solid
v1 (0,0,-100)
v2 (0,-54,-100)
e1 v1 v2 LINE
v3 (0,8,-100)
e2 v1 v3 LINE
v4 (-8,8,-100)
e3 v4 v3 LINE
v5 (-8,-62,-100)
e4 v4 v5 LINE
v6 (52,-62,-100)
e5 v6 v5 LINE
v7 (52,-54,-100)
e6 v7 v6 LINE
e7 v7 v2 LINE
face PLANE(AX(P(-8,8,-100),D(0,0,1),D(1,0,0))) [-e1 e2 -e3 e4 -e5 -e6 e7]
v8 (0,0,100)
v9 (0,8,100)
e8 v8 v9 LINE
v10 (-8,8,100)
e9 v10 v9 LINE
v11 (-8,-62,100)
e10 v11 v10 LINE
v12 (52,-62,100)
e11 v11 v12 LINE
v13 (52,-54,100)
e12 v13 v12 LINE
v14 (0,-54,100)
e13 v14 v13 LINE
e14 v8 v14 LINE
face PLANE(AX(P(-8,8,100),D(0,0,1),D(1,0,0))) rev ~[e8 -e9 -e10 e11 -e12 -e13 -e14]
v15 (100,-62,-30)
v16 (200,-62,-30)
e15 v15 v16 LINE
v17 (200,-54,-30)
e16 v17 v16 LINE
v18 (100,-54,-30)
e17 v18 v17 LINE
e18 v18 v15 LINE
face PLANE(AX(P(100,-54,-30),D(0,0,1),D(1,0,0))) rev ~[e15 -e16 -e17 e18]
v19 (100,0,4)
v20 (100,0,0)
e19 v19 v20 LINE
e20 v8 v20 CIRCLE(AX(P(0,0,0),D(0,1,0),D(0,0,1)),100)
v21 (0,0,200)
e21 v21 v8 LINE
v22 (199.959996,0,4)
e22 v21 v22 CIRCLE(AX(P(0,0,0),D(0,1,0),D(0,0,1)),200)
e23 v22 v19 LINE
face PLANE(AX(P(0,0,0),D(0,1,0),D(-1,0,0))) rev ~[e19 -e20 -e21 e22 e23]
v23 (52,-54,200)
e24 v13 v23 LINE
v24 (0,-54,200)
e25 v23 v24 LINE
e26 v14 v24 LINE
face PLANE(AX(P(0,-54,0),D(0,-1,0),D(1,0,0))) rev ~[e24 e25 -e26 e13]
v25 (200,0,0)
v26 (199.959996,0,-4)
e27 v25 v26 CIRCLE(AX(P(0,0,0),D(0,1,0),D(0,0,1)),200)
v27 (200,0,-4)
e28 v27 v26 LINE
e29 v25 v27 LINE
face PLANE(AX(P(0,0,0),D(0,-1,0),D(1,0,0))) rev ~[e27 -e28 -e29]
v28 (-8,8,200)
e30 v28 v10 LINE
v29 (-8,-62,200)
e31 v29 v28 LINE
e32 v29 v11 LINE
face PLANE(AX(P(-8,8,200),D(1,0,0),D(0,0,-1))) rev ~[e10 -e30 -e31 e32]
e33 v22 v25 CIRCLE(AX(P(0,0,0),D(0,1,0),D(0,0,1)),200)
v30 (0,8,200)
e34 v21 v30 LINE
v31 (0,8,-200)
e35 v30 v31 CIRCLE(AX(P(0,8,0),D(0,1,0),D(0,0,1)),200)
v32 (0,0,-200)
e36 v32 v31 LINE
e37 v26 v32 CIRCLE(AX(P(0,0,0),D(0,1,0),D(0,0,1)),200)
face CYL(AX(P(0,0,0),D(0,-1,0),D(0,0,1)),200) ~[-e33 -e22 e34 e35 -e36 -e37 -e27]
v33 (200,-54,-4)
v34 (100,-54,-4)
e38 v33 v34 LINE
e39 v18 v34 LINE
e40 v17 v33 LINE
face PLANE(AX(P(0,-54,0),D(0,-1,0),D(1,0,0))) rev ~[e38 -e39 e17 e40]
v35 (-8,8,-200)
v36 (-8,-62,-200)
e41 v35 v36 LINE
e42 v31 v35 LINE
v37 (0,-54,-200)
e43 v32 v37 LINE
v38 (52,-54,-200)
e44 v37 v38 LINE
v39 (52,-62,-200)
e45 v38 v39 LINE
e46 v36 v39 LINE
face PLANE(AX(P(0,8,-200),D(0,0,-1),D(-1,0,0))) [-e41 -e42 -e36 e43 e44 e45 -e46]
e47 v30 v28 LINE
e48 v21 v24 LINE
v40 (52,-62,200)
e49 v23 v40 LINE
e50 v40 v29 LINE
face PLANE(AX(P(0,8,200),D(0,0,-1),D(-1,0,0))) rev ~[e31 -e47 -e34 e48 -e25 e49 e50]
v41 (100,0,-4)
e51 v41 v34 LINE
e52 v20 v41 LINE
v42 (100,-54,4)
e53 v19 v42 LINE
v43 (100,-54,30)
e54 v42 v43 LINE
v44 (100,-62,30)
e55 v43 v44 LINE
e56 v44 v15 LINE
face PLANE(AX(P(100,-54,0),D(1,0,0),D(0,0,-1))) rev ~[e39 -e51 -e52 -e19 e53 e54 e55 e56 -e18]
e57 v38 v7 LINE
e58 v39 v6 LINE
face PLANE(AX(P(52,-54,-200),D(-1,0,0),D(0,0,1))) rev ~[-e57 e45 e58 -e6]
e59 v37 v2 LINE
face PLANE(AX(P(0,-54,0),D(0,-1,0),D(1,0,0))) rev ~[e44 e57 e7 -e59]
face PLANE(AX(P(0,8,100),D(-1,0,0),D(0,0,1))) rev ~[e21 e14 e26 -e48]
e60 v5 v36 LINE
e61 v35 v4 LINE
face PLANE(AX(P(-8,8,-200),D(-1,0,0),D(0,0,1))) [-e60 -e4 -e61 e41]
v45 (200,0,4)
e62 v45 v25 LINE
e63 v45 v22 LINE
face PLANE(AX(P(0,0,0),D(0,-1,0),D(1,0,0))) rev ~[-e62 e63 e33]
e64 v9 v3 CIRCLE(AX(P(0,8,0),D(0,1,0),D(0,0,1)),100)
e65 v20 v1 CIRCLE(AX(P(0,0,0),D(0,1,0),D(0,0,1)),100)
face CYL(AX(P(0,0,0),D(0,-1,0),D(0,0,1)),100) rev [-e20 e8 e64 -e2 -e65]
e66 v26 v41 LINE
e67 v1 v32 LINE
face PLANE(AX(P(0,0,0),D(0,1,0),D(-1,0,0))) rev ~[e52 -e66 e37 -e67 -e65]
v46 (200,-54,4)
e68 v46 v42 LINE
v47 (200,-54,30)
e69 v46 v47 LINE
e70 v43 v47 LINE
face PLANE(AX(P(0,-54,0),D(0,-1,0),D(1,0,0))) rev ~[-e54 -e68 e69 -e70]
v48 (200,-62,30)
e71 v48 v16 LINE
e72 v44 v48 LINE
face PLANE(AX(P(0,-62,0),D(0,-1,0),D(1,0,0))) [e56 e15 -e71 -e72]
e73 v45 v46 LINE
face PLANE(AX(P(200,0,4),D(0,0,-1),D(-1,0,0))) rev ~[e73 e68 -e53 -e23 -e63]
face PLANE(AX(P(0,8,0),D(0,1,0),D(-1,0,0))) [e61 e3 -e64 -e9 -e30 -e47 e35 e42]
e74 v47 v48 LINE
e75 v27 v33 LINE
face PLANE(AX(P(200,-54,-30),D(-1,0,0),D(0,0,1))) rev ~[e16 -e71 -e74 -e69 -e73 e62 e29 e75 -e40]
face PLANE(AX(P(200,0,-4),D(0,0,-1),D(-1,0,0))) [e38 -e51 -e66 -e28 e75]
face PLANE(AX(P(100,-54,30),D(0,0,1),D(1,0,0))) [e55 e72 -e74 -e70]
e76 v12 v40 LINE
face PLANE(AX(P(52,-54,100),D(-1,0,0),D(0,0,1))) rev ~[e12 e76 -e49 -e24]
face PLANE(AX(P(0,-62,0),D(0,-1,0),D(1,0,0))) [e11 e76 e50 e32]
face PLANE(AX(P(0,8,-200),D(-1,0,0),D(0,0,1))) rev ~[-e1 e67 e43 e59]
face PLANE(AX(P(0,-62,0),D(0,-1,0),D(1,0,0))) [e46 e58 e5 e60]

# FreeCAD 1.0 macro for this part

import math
import FreeCAD as App
import Part
import Sketcher

V = App.Vector
Q = App.Units.Quantity


def add_polygon(sketch, points):
    """Adds a closed chain of lines whose ends are joined by coincident constraints."""
    first, n = sketch.GeometryCount, len(points)
    for a, b in zip(points, points[1:] + points[:1]):
        sketch.addGeometry(Part.LineSegment(App.Vector(*a, 0), App.Vector(*b, 0)), False)
    for i in range(n):
        sketch.addConstraint(Sketcher.Constraint("Coincident", first + i, 2, first + (i + 1) % n, 1))

doc = App.newDocument("Part")
body = doc.addObject("PartDesign::Body", "Body")

# Sketch on XZ plane
sketch1 = body.newObject("Sketcher::SketchObject", "Sketch")
sketch1.AttachmentSupport = (doc.getObject("XZ_Plane"), [""])
sketch1.MapMode = "FlatFace"
sketch1.addGeometry([
    Part.ArcOfCircle(Part.Circle(V(0, 0, 0), V(0, 0, 1), 100), math.radians(-90), math.radians(90)),
    Part.LineSegment(V(0, 100, 0), V(0, 200, 0)),
    Part.ArcOfCircle(Part.Circle(V(0, 0, 0), V(0, 0, 1), 200), math.radians(-90), math.radians(90)),
    Part.LineSegment(V(0, -200, 0), V(0, -100, 0)),
], False)
sketch1.addConstraint([
    Sketcher.Constraint("Coincident", 0, 2, 1, 1),
    Sketcher.Constraint("Coincident", 1, 2, 2, 2),
    Sketcher.Constraint("Coincident", 2, 1, 3, 1),
    Sketcher.Constraint("Coincident", 3, 2, 0, 1),
    Sketcher.Constraint("Vertical", 1),
    Sketcher.Constraint("Vertical", 3),
    Sketcher.Constraint("Coincident", 0, 3, -1, 1),
    Sketcher.Constraint("Coincident", 2, 3, -1, 1),
    Sketcher.Constraint("PointOnObject", 0, 2, -2),
    Sketcher.Constraint("PointOnObject", 2, 1, -2),
    Sketcher.Constraint("Radius", 0, Q("100 mm")),
    Sketcher.Constraint("Radius", 2, Q("200 mm")),
])
pad1 = body.newObject("PartDesign::Pad", "Pad")
pad1.Profile = sketch1
pad1.Length = 8
pad1.Reversed = True

# Sketch on XZ plane
sketch2 = body.newObject("Sketcher::SketchObject", "Sketch001")
sketch2.AttachmentSupport = (doc.getObject("XZ_Plane"), [""])
sketch2.MapMode = "FlatFace"
sketch2.AttachmentOffset = App.Placement(V(0, 0, -8), App.Rotation())
add_polygon(sketch2, [(0, 200), (0, 100), (-8, 100), (-8, 200)])  # lines 0-3
add_polygon(sketch2, [(0, -100), (0, -200), (-8, -200), (-8, -100)])  # lines 4-7
sketch2.addConstraint([
    Sketcher.Constraint("Vertical", 0),
    Sketcher.Constraint("Horizontal", 1),
    Sketcher.Constraint("Vertical", 2),
    Sketcher.Constraint("Horizontal", 3),
    Sketcher.Constraint("Vertical", 4),
    Sketcher.Constraint("Horizontal", 5),
    Sketcher.Constraint("Vertical", 6),
    Sketcher.Constraint("Horizontal", 7),
    Sketcher.Constraint("Symmetric", 3, 2, 4, 2, -1, 1),
    Sketcher.Constraint("Symmetric", 1, 2, 6, 2, -1),
    Sketcher.Constraint("PointOnObject", 0, 2, -2),
    Sketcher.Constraint("DistanceX", 1, 2, 1, 1, Q("8 mm")),
    Sketcher.Constraint("DistanceY", 0, 2, 0, 1, Q("100 mm")),
    Sketcher.Constraint("DistanceY", -1, 1, 0, 2, Q("100 mm")),
])
pad2 = body.newObject("PartDesign::Pad", "Pad001")
pad2.Profile = sketch2
pad2.Length = 62

# Sketch on XZ plane
sketch3 = body.newObject("Sketcher::SketchObject", "Sketch002")
sketch3.AttachmentSupport = (doc.getObject("XZ_Plane"), [""])
sketch3.MapMode = "FlatFace"
sketch3.AttachmentOffset = App.Placement(V(0, 0, 54), App.Rotation())
add_polygon(sketch3, [(52, -100), (-8, -100), (-8, -200), (52, -200)])  # lines 0-3
add_polygon(sketch3, [(52, 200), (-8, 200), (-8, 100), (52, 100)])  # lines 4-7
sketch3.addConstraint([
    Sketcher.Constraint("Horizontal", 0),
    Sketcher.Constraint("Vertical", 1),
    Sketcher.Constraint("Horizontal", 2),
    Sketcher.Constraint("Vertical", 3),
    Sketcher.Constraint("Horizontal", 4),
    Sketcher.Constraint("Vertical", 5),
    Sketcher.Constraint("Horizontal", 6),
    Sketcher.Constraint("Vertical", 7),
    Sketcher.Constraint("Symmetric", 1, 2, 4, 2, -1),
    Sketcher.Constraint("Symmetric", 3, 2, 6, 2, -1),
    Sketcher.Constraint("DistanceX", 0, 2, 0, 1, Q("60 mm")),
    Sketcher.Constraint("DistanceY", 1, 2, 1, 1, Q("100 mm")),
    Sketcher.Constraint("DistanceX", 0, 2, -1, 1, Q("8 mm")),
    Sketcher.Constraint("DistanceY", 0, 2, -1, 1, Q("100 mm")),
])
pad3 = body.newObject("PartDesign::Pad", "Pad002")
pad3.Profile = sketch3
pad3.Length = 8

# Sketch on XZ plane
sketch4 = body.newObject("Sketcher::SketchObject", "Sketch003")
sketch4.AttachmentSupport = (doc.getObject("XZ_Plane"), [""])
sketch4.MapMode = "FlatFace"
add_polygon(sketch4, [(100, 4), (100, -4), (200, -4), (200, 4)])  # lines 0-3
sketch4.addConstraint([
    Sketcher.Constraint("Vertical", 0),
    Sketcher.Constraint("Horizontal", 1),
    Sketcher.Constraint("Vertical", 2),
    Sketcher.Constraint("Horizontal", 3),
    Sketcher.Constraint("DistanceX", 1, 1, 1, 2, Q("100 mm")),
    Sketcher.Constraint("DistanceX", -1, 1, 0, 2, Q("100 mm")),
    Sketcher.Constraint("DistanceY", 0, 2, -1, 1, Q("4 mm")),
    Sketcher.Constraint("DistanceY", -1, 1, 2, 2, Q("4 mm")),
])
pad4 = body.newObject("PartDesign::Pad", "Pad003")
pad4.Profile = sketch4
pad4.Length = 54

# Sketch on XZ plane
sketch5 = body.newObject("Sketcher::SketchObject", "Sketch004")
sketch5.AttachmentSupport = (doc.getObject("XZ_Plane"), [""])
sketch5.MapMode = "FlatFace"
sketch5.AttachmentOffset = App.Placement(V(0, 0, 54), App.Rotation())
add_polygon(sketch5, [(200, -30), (200, 30), (100, 30), (100, -30)])  # lines 0-3
sketch5.addConstraint([
    Sketcher.Constraint("Vertical", 0),
    Sketcher.Constraint("Horizontal", 1),
    Sketcher.Constraint("Vertical", 2),
    Sketcher.Constraint("Horizontal", 3),
    Sketcher.Constraint("DistanceX", 1, 2, 1, 1, Q("100 mm")),
    Sketcher.Constraint("DistanceY", -1, 1, 0, 2, Q("30 mm")),
    Sketcher.Constraint("DistanceX", -1, 1, 1, 2, Q("100 mm")),
    Sketcher.Constraint("DistanceY", 2, 2, -1, 1, Q("30 mm")),
])
pad5 = body.newObject("PartDesign::Pad", "Pad004")
pad5.Profile = sketch5
pad5.Length = 8

doc.recompute()
